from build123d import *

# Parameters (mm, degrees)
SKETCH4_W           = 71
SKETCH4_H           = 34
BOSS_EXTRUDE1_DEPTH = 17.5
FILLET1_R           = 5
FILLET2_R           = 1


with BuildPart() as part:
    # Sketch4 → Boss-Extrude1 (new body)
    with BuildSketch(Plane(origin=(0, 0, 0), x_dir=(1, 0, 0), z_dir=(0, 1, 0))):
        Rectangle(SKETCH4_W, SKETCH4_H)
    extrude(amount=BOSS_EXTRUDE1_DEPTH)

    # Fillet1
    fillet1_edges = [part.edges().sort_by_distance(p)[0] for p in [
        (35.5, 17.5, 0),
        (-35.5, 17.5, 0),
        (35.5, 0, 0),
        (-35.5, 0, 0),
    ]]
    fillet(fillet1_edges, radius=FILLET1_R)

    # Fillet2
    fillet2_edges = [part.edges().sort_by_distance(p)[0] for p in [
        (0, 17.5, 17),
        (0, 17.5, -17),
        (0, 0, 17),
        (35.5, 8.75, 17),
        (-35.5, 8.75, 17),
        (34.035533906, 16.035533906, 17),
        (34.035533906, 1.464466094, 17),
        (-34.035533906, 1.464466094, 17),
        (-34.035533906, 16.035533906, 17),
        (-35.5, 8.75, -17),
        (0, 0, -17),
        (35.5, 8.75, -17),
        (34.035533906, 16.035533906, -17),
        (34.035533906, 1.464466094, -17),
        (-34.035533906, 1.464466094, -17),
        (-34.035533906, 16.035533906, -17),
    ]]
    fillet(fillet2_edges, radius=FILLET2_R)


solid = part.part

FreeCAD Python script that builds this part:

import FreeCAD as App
import Part
import Sketcher
from FreeCAD import Vector


def edges_at(feature, points):
    """Names of the edges that pass closest to the given points."""
    edges = feature.Shape.Edges
    near = lambda p: min(range(len(edges)), key=lambda i: edges[i].distToShape(Part.Vertex(*p))[0])
    return sorted({f"Edge{near(p) + 1}" for p in points})

doc = App.newDocument("Part")
params = doc.addObject("Spreadsheet::Sheet", "Params")
for row, (alias, value) in enumerate([
    ("sketch1_width", "71 mm"),
    ("sketch1_height", "34 mm"),
    ("pad1_length", "17.5 mm"),
    ("fillet_radius", "5 mm"),
    ("fillet2_radius", "1 mm"),
], start=1):
    params.set(f"A{row}", alias)
    params.set(f"B{row}", "=" + value)
    params.setAlias(f"B{row}", alias)

body = doc.addObject("PartDesign::Body", "Body")

sketch1 = doc.addObject("Sketcher::SketchObject", "Sketch")
body.addObject(sketch1)
sketch1.AttachmentSupport = (doc.XZ_Plane, [""])
sketch1.MapMode = "FlatFace"
sketch1.addGeometry([
    Part.LineSegment(Vector(-36, -17, 0), Vector(-36, 17, 0)),
    Part.LineSegment(Vector(-36, 17, 0), Vector(36, 17, 0)),
    Part.LineSegment(Vector(36, 17, 0), Vector(36, -17, 0)),
    Part.LineSegment(Vector(36, -17, 0), Vector(-36, -17, 0)),
], False)
sketch1.addConstraint([
    Sketcher.Constraint("Coincident", 0, 2, 1, 1),
    Sketcher.Constraint("Coincident", 1, 2, 2, 1),
    Sketcher.Constraint("Coincident", 2, 2, 3, 1),
    Sketcher.Constraint("Coincident", 3, 2, 0, 1),
    Sketcher.Constraint("Vertical", 0),
    Sketcher.Constraint("Horizontal", 1),
    Sketcher.Constraint("Vertical", 2),
    Sketcher.Constraint("Horizontal", 3),
    Sketcher.Constraint("Symmetric", 0, 2, 2, 2, -1, 1),
    Sketcher.Constraint("DistanceX", 1, 1, 1, 2, 71.0),
    Sketcher.Constraint("DistanceY", 0, 1, 0, 2, 34.0),
])
sketch1.setExpression("Constraints[9]", "Params.sketch1_width")
sketch1.setExpression("Constraints[10]", "Params.sketch1_height")
pad1 = doc.addObject("PartDesign::Pad", "Pad")
body.addObject(pad1)
pad1.Profile = sketch1
pad1.setExpression("Length", "Params.pad1_length")
pad1.Reversed = True
doc.recompute()

fillet = doc.addObject("PartDesign::Fillet", "Fillet")
body.addObject(fillet)
fillet.Base = (pad1, edges_at(pad1, [
    (35.5, 17.5, 0),
    (-35.5, 17.5, 0),
    (35.5, 0, 0),
    (-35.5, 0, 0),
]))
fillet.setExpression("Radius", "Params.fillet_radius")
doc.recompute()

fillet2 = doc.addObject("PartDesign::Fillet", "Fillet001")
body.addObject(fillet2)
fillet2.Base = (fillet, edges_at(fillet, [
    (0, 17.5, 17),
    (0, 17.5, -17),
    (0, 0, 17),
    (35.5, 8.75, 17),
    (-35.5, 8.75, 17),
    (34.036, 16.036, 17),
    (34.036, 1.464, 17),
    (-34.036, 1.464, 17),
    (-34.036, 16.036, 17),
    (-35.5, 8.75, -17),
    (0, 0, -17),
    (35.5, 8.75, -17),
    (34.036, 16.036, -17),
    (34.036, 1.464, -17),
    (-34.036, 1.464, -17),
    (-34.036, 16.036, -17),
]))
fillet2.setExpression("Radius", "Params.fillet2_radius")

doc.recompute()
